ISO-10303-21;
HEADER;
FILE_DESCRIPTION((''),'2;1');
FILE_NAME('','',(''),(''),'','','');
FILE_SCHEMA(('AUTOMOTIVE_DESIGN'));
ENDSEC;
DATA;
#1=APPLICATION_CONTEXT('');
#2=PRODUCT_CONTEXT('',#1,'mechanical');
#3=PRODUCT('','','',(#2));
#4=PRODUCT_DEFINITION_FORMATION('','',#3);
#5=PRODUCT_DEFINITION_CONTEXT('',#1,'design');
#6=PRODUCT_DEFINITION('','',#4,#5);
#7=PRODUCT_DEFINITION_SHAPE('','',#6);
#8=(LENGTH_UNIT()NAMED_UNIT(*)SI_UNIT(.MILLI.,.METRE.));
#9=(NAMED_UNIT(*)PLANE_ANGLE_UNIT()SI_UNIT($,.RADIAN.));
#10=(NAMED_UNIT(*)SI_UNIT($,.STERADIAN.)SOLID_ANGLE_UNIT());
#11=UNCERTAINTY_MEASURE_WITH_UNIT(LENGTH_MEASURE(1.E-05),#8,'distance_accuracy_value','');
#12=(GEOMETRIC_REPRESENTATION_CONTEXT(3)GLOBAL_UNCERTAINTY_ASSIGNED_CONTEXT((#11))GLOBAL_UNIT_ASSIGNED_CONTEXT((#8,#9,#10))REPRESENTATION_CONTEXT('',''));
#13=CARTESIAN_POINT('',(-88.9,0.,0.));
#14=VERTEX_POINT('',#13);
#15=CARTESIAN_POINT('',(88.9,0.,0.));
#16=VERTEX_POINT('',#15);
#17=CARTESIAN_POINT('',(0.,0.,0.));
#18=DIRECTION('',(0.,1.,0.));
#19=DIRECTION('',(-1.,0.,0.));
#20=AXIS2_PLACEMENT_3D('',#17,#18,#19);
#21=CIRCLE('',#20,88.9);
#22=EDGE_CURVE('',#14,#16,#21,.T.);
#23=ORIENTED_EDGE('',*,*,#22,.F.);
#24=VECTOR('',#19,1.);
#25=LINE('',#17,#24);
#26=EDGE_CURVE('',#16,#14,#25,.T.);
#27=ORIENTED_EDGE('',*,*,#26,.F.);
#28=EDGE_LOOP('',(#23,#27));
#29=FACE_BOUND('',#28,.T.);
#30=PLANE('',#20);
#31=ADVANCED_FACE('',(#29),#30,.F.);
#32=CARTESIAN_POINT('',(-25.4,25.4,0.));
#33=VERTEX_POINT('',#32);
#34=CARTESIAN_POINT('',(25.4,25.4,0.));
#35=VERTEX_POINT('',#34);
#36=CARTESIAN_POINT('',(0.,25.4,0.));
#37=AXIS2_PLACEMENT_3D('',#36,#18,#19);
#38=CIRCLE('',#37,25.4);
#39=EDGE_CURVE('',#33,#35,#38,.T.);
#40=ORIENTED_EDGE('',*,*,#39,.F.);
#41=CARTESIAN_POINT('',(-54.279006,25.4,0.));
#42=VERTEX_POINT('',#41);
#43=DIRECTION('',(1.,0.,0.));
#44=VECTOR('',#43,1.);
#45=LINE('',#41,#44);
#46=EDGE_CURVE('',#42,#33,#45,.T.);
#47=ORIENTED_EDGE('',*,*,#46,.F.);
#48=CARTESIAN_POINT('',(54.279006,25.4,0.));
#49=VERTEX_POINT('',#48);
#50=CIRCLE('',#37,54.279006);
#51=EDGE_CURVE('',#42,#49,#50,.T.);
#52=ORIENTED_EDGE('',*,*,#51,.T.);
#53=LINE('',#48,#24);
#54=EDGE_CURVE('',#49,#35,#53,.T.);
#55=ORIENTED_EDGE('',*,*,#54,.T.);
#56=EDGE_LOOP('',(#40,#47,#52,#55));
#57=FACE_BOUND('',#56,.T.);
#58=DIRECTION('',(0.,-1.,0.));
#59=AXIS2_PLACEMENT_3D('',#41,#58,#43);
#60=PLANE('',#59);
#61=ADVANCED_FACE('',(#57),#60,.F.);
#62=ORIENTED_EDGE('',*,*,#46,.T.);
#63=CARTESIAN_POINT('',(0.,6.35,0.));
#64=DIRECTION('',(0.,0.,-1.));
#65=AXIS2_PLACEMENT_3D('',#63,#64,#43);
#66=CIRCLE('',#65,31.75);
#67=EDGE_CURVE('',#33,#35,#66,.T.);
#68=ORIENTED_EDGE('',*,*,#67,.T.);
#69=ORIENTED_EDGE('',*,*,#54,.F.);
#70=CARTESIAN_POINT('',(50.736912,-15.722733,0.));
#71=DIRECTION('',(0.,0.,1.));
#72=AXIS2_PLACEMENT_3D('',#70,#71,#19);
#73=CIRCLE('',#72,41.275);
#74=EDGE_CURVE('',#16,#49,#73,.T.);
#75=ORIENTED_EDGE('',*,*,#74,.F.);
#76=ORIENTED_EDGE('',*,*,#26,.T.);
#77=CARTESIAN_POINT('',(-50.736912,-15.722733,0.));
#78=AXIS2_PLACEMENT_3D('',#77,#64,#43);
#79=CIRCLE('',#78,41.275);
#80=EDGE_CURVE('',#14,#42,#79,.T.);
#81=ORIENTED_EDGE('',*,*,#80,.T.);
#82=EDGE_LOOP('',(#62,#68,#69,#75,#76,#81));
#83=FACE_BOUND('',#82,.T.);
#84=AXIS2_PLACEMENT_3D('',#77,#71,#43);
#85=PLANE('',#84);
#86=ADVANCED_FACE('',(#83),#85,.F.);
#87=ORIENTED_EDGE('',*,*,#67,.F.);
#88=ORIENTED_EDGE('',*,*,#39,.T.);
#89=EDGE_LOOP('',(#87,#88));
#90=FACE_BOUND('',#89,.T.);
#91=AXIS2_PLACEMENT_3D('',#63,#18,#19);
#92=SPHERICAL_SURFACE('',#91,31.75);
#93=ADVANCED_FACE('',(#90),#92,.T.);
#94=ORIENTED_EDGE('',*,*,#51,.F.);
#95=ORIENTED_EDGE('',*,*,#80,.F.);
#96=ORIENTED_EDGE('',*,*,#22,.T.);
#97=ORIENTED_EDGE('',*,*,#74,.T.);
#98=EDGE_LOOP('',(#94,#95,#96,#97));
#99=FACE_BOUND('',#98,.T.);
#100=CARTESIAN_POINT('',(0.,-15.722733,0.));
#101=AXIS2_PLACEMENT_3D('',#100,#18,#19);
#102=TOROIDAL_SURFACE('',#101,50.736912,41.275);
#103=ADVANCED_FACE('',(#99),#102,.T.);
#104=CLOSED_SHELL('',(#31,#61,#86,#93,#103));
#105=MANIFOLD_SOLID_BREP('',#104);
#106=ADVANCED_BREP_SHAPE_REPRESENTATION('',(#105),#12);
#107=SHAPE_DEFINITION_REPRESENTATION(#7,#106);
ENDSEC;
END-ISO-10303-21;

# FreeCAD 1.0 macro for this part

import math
import FreeCAD as App
import Part
import Sketcher
from FreeCAD import Vector
Q = App.Units.Quantity

doc = App.newDocument("Part")
params = doc.addObject("Spreadsheet::Sheet", "Params")
for row, (alias, value) in enumerate([
    ("sketch1_radius", "1.25 in"),
    ("sketch1_width", "3.5 in"),
    ("sketch1_height", "1.5 in"),
    ("sketch1_radius2", "1.625 in"),
    ("revolution_angle", "180 deg"),
], start=1):
    params.set(f"A{row}", alias)
    params.set(f"B{row}", "=" + value)
    params.setAlias(f"B{row}", alias)

body = doc.addObject("PartDesign::Body", "Body")

sketch1 = body.newObject("Sketcher::SketchObject", "Sketch")
sketch1.AttachmentSupport = (doc.getObject("XY_Plane"), [""])
sketch1.MapMode = "FlatFace"
sketch1.addGeometry(Part.LineSegment(Vector(0, 0, 0), Vector(89, 0, 0)), False)
sketch1.addGeometry(Part.ArcOfCircle(Part.Circle(Vector(51, -16, 0), Vector(0, 0, 1), 41), math.radians(22), math.radians(85)), False)
sketch1.addGeometry(Part.LineSegment(Vector(54, 25, 0), Vector(25, 25, 0)), False)
sketch1.addGeometry(Part.ArcOfCircle(Part.Circle(Vector(0, 6, 0), Vector(0, 0, 1), 32), math.radians(37), math.radians(90)), False)
sketch1.addGeometry(Part.LineSegment(Vector(0, 38, 0), Vector(0, 0, 0)), False)
sketch1.addConstraint(Sketcher.Constraint("Coincident", 0, 2, 1, 1))
sketch1.addConstraint(Sketcher.Constraint("Coincident", 1, 2, 2, 1))
sketch1.addConstraint(Sketcher.Constraint("Coincident", 2, 2, 3, 1))
sketch1.addConstraint(Sketcher.Constraint("Coincident", 3, 2, 4, 1))
sketch1.addConstraint(Sketcher.Constraint("Coincident", 4, 2, 0, 1))
sketch1.addConstraint(Sketcher.Constraint("Horizontal", 0))
sketch1.addConstraint(Sketcher.Constraint("Horizontal", 2))
sketch1.addConstraint(Sketcher.Constraint("Vertical", 4))
sketch1.addConstraint(Sketcher.Constraint("Coincident", 4, 2, -1, 1))
sketch1.addConstraint(Sketcher.Constraint("PointOnObject", 3, 3, -2))
sketch1.addConstraint(Sketcher.Constraint("Radius", 3, Q("1.25 in")))
sketch1.addConstraint(Sketcher.Constraint("DistanceX", 0, 1, 0, 2, Q("3.5 in")))
sketch1.addConstraint(Sketcher.Constraint("DistanceY", 4, 2, 4, 1, Q("1.5 in")))
sketch1.addConstraint(Sketcher.Constraint("DistanceY", -1, 1, 1, 2, Q("1 in")))
sketch1.addConstraint(Sketcher.Constraint("Radius", 1, Q("1.625 in")))
sketch1.addConstraint(Sketcher.Constraint("DistanceX", 2, 2, 2, 1, Q("28.879006 mm")))
sketch1.setExpression("Constraints[10]", "Params.sketch1_radius")
sketch1.setExpression("Constraints[11]", "Params.sketch1_width")
sketch1.setExpression("Constraints[12]", "Params.sketch1_height")
sketch1.setExpression("Constraints[14]", "Params.sketch1_radius2")
revolution = body.newObject("PartDesign::Revolution", "Revolution")
revolution.Profile = sketch1
revolution.ReferenceAxis = (sketch1, ["V_Axis"])
revolution.setExpression("Angle", "Params.revolution_angle")
revolution.Reversed = True

doc.recompute()
